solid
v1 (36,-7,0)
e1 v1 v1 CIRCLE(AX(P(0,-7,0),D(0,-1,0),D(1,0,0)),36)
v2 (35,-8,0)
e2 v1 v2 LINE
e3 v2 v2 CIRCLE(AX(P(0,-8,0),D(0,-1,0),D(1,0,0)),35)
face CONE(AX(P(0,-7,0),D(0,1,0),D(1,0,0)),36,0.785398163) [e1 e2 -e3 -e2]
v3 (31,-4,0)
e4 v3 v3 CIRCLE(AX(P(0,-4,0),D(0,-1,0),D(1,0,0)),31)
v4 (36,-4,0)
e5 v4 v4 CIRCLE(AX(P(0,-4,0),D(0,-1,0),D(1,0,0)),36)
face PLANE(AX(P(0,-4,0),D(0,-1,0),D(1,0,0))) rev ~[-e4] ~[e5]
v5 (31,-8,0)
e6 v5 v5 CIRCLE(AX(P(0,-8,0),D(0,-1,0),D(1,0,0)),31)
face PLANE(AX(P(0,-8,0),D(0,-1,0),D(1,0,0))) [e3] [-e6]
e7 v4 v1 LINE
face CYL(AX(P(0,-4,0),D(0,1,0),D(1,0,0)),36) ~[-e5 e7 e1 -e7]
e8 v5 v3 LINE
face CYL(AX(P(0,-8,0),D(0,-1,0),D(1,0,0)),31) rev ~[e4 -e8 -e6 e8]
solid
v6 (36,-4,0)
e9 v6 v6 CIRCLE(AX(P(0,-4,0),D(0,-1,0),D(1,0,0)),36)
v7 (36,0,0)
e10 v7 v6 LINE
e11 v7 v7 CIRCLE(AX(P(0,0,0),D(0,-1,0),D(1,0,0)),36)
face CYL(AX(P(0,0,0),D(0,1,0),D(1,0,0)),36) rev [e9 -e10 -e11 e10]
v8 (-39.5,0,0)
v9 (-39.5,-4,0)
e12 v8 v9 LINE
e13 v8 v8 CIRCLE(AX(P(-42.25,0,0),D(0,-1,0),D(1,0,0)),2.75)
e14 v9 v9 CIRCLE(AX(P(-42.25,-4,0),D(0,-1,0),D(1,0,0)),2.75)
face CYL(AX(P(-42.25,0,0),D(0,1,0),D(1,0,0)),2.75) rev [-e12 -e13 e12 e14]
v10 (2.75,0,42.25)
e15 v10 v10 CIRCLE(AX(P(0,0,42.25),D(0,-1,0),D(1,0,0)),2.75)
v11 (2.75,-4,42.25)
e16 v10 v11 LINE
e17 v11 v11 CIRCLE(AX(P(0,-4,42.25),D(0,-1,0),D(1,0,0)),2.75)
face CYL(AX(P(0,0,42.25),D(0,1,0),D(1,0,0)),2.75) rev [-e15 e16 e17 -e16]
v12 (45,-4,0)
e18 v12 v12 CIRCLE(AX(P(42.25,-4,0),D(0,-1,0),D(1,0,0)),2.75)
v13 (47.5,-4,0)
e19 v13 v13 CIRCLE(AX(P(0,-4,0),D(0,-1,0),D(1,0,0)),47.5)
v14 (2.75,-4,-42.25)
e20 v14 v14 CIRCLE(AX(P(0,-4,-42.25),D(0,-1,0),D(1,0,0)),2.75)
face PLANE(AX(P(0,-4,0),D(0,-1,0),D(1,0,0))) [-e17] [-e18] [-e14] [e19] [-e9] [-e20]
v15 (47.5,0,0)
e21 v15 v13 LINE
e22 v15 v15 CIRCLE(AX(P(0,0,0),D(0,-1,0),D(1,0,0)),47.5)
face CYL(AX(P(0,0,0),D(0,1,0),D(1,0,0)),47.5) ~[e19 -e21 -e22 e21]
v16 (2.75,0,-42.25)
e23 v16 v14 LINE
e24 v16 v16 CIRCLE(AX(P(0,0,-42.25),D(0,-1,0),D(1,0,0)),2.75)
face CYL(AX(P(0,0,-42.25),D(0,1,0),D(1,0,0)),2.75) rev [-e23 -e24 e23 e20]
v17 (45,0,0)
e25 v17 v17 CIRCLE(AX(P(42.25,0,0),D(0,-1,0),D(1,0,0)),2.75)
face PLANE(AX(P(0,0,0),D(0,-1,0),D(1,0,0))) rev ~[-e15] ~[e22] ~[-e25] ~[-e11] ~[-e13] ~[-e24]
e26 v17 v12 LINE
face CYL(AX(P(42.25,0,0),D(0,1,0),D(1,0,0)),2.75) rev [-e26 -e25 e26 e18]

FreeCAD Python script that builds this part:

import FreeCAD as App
import Part
import Sketcher
Q = App.Units.Quantity


def edges_at(feature, points):
    """Names of the edges that pass closest to the given points."""
    edges = feature.Shape.Edges
    near = lambda p: min(range(len(edges)), key=lambda i: edges[i].distToShape(Part.Vertex(*p))[0])
    return sorted({f"Edge{near(p) + 1}" for p in points})

doc = App.newDocument("Part")
body = doc.addObject("PartDesign::Body", "Body")

sketch1 = doc.addObject("Sketcher::SketchObject", "Sketch")
body.addObject(sketch1)
sketch1.AttachmentSupport = (doc.XZ_Plane, [""])
sketch1.MapMode = "FlatFace"
sketch1.addGeometry(Part.Circle(App.Vector(0, 0, 0), App.Vector(0, 0, 1), 47.5), False)
sketch1.addGeometry(Part.Circle(App.Vector(0, -42.2, 0), App.Vector(0, 0, 1), 2.8), False)
sketch1.addGeometry(Part.Circle(App.Vector(-42.2, 0, 0), App.Vector(0, 0, 1), 2.8), False)
sketch1.addGeometry(Part.Circle(App.Vector(0, 0, 0), App.Vector(0, 0, 1), 36), False)
sketch1.addGeometry(Part.Circle(App.Vector(42.2, 0, 0), App.Vector(0, 0, 1), 2.8), False)
sketch1.addGeometry(Part.Circle(App.Vector(0, 42.2, 0), App.Vector(0, 0, 1), 2.8), False)
sketch1.addConstraint(Sketcher.Constraint("Coincident", 0, 3, -1, 1))
sketch1.addConstraint(Sketcher.Constraint("Coincident", 3, 3, -1, 1))
sketch1.addConstraint(Sketcher.Constraint("Equal", 1, 2))
sketch1.addConstraint(Sketcher.Constraint("Equal", 2, 4))
sketch1.addConstraint(Sketcher.Constraint("Equal", 4, 5))
sketch1.addConstraint(Sketcher.Constraint("Symmetric", 2, 3, 4, 3, -1, 1))
sketch1.addConstraint(Sketcher.Constraint("Symmetric", 1, 3, 5, 3, -1, 1))
sketch1.addConstraint(Sketcher.Constraint("PointOnObject", 1, 3, -2))
sketch1.addConstraint(Sketcher.Constraint("PointOnObject", 2, 3, -1))
sketch1.addConstraint(Sketcher.Constraint("Diameter", 0, Q("95 mm")))
sketch1.addConstraint(Sketcher.Constraint("Diameter", 3, Q("72 mm")))
sketch1.addConstraint(Sketcher.Constraint("Diameter", 1, Q("5.5 mm")))
sketch1.addConstraint(Sketcher.Constraint("DistanceX", 2, 3, 4, 3, Q("84.5 mm")))
sketch1.addConstraint(Sketcher.Constraint("DistanceY", 1, 3, 5, 3, Q("84.5 mm")))
pad1 = doc.addObject("PartDesign::Pad", "Pad")
body.addObject(pad1)
pad1.Profile = sketch1
pad1.Length = 4
body2 = doc.addObject("PartDesign::Body", "Body001")

sketch2 = doc.addObject("Sketcher::SketchObject", "Sketch001")
body2.addObject(sketch2)
sketch2.AttachmentSupport = (doc.getObject("XZ_Plane001"), [""])
sketch2.MapMode = "FlatFace"
sketch2.AttachmentOffset = App.Placement(App.Vector(0, 0, 4), App.Rotation())
sketch2.addGeometry(Part.Circle(App.Vector(0, 0, 0), App.Vector(0, 0, 1), 36), False)
sketch2.addConstraint(Sketcher.Constraint("Coincident", 0, 3, -1, 1))
sketch2.addConstraint(Sketcher.Constraint("Diameter", 0, Q("72 mm")))
pad2 = doc.addObject("PartDesign::Pad", "Pad001")
body2.addObject(pad2)
pad2.Profile = sketch2
pad2.Length = 4

sketch3 = doc.addObject("Sketcher::SketchObject", "Sketch002")
body2.addObject(sketch3)
sketch3.AttachmentSupport = (doc.getObject("XZ_Plane001"), [""])
sketch3.MapMode = "FlatFace"
sketch3.AttachmentOffset = App.Placement(App.Vector(0, 0, 8), App.Rotation())
sketch3.addGeometry(Part.Circle(App.Vector(0, 0, 0), App.Vector(0, 0, 1), 31), False)
sketch3.addConstraint(Sketcher.Constraint("Coincident", 0, 3, -1, 1))
sketch3.addConstraint(Sketcher.Constraint("Diameter", 0, Q("62 mm")))
pocket1 = doc.addObject("PartDesign::Pocket", "Pocket")
body2.addObject(pocket1)
pocket1.Profile = sketch3
pocket1.Type = "ThroughAll"
doc.recompute()

chamfer = doc.addObject("PartDesign::Chamfer", "Chamfer")
body2.addObject(chamfer)
chamfer.Base = (pocket1, edges_at(pocket1, [(-36, -8, 0)]))
chamfer.Size = 1

doc.recompute()
